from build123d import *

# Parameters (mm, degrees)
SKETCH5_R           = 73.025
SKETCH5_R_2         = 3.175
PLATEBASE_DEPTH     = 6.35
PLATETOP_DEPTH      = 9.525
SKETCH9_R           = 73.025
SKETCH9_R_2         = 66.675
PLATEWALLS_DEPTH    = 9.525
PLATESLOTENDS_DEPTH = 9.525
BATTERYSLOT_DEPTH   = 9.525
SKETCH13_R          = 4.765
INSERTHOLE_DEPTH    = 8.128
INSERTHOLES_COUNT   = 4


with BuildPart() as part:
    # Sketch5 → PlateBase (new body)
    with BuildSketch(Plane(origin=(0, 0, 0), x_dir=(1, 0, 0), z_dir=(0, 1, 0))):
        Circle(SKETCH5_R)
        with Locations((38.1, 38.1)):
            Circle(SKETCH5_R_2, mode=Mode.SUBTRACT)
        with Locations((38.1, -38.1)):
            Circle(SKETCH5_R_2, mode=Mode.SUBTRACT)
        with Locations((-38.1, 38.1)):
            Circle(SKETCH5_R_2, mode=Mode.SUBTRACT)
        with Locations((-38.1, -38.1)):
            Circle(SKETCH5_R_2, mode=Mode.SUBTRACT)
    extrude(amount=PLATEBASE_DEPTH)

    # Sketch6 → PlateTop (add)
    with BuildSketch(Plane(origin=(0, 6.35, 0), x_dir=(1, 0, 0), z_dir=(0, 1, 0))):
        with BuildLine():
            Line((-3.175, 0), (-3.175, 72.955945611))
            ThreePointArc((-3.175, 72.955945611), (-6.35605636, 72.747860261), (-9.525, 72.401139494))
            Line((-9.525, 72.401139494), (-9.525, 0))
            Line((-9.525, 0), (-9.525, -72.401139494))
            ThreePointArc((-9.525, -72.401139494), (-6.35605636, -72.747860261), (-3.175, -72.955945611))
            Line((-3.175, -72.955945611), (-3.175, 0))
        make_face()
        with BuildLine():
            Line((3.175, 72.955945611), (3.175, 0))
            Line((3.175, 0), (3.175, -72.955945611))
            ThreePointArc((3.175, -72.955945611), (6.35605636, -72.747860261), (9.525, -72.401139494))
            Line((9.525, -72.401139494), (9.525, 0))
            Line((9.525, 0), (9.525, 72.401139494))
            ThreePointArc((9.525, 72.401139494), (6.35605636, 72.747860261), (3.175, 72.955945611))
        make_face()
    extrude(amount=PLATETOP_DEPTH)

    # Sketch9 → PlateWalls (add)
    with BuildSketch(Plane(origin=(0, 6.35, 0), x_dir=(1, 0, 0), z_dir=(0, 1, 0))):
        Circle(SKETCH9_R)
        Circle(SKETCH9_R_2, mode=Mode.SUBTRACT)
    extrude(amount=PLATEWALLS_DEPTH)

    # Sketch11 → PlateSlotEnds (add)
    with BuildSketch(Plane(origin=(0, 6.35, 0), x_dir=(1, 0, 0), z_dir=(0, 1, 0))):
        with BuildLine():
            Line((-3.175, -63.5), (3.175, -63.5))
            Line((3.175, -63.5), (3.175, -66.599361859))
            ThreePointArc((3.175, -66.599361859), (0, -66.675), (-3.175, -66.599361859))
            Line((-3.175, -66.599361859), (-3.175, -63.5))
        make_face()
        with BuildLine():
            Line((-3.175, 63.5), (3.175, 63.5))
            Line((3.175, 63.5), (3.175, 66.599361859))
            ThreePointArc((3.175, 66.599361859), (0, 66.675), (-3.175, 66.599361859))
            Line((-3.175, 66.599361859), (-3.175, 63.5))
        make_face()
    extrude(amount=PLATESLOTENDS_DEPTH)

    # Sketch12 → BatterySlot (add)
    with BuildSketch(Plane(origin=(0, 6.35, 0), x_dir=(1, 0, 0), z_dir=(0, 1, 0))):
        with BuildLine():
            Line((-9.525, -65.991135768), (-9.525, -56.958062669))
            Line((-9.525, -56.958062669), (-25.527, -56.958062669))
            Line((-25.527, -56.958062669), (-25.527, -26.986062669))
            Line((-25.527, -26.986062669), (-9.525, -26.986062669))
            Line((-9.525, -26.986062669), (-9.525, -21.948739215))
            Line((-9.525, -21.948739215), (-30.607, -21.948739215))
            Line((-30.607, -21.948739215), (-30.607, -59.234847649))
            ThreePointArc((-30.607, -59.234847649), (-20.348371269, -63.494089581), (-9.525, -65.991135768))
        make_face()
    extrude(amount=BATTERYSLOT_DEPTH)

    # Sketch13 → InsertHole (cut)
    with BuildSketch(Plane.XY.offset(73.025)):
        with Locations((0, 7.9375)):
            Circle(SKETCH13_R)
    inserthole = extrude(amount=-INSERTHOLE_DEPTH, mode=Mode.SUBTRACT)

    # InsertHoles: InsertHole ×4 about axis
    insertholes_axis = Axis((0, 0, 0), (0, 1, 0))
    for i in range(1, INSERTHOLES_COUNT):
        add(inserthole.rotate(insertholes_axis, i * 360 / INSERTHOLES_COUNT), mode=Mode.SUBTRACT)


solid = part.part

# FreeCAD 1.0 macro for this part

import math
import FreeCAD as App
import Part
import Sketcher
from FreeCAD import Vector
Q = App.Units.Quantity

doc = App.newDocument("Part")
params = doc.addObject("Spreadsheet::Sheet", "Params")
for row, (alias, value) in enumerate([
    ("sketch1_diameter", "5.75 in"),
    ("sketch1_diameter2", "0.25 in"),
    ("pad1_length", "0.25 in"),
    ("sketch2_radius", "2.875 in"),
    ("pad2_length", "0.375 in"),
    ("sketch3_diameter", "5.75 in"),
    ("sketch3_diameter2", "5.25 in"),
    ("pad3_length", "0.375 in"),
    ("sketch4_radius", "2.625 in"),
    ("sketch4_width", "0.25 in"),
    ("pad4_length", "0.375 in"),
    ("sketch5_radius", "2.625 in"),
    ("sketch5_width", "0.63 in"),
    ("sketch5_width2", "0.83 in"),
    ("sketch5_height", "1.18 in"),
    ("pad5_length", "0.375 in"),
    ("pocket1_length", "0.32 in"),
], start=1):
    params.set(f"A{row}", alias)
    params.set(f"B{row}", "=" + value)
    params.setAlias(f"B{row}", alias)

body = doc.addObject("PartDesign::Body", "Body")

sketch1 = doc.addObject("Sketcher::SketchObject", "Sketch")
body.addObject(sketch1)
sketch1.AttachmentSupport = (doc.XZ_Plane, [""])
sketch1.MapMode = "FlatFace"
sketch1.addGeometry(Part.Circle(Vector(0, 0, 0), Vector(0, 0, 1), 73), False)
sketch1.addGeometry(Part.Circle(Vector(-38.1, 38.1, 0), Vector(0, 0, 1), 3.2), False)
sketch1.addGeometry(Part.Circle(Vector(38.1, 38.1, 0), Vector(0, 0, 1), 3.2), False)
sketch1.addGeometry(Part.Circle(Vector(-38.1, -38.1, 0), Vector(0, 0, 1), 3.2), False)
sketch1.addGeometry(Part.Circle(Vector(38.1, -38.1, 0), Vector(0, 0, 1), 3.2), False)
sketch1.addConstraint(Sketcher.Constraint("Coincident", 0, 3, -1, 1))
sketch1.addConstraint(Sketcher.Constraint("Equal", 1, 2))
sketch1.addConstraint(Sketcher.Constraint("Equal", 2, 3))
sketch1.addConstraint(Sketcher.Constraint("Equal", 3, 4))
sketch1.addConstraint(Sketcher.Constraint("Symmetric", 2, 3, 3, 3, -1, 1))
sketch1.addConstraint(Sketcher.Constraint("Symmetric", 1, 3, 4, 3, -1, 1))
sketch1.addConstraint(Sketcher.Constraint("Symmetric", 1, 3, 2, 3, -2))
sketch1.addConstraint(Sketcher.Constraint("Diameter", 0, Q("5.75 in")))
sketch1.addConstraint(Sketcher.Constraint("Diameter", 1, Q("0.25 in")))
sketch1.addConstraint(Sketcher.Constraint("DistanceX", 1, 3, 2, 3, Q("3 in")))
sketch1.addConstraint(Sketcher.Constraint("DistanceY", 3, 3, 1, 3, Q("3 in")))
sketch1.setExpression("Constraints[7]", "Params.sketch1_diameter")
sketch1.setExpression("Constraints[8]", "Params.sketch1_diameter2")
pad1 = doc.addObject("PartDesign::Pad", "Pad")
body.addObject(pad1)
pad1.Profile = sketch1
pad1.setExpression("Length", "Params.pad1_length")
pad1.Reversed = True

sketch2 = doc.addObject("Sketcher::SketchObject", "Sketch001")
body.addObject(sketch2)
sketch2.AttachmentSupport = (doc.XZ_Plane, [""])
sketch2.MapMode = "FlatFace"
sketch2.AttachmentOffset = App.Placement(Vector(0, 0, -0.25 * 25.4), App.Rotation())
sketch2.addGeometry(Part.ArcOfCircle(Part.Circle(Vector(0, 0, 0), Vector(0, 0, 1), 73), math.radians(-97.49), math.radians(-92.49)), False)
sketch2.addGeometry(Part.LineSegment(Vector(-10, -72, 0), Vector(-10, 72, 0)), False)
sketch2.addGeometry(Part.ArcOfCircle(Part.Circle(Vector(0, 0, 0), Vector(0, 0, 1), 73), math.radians(92.49), math.radians(97.49)), False)
sketch2.addGeometry(Part.LineSegment(Vector(-3, 73, 0), Vector(-3, -73, 0)), False)
sketch2.addGeometry(Part.LineSegment(Vector(3, -73, 0), Vector(3, 73, 0)), False)
sketch2.addGeometry(Part.ArcOfCircle(Part.Circle(Vector(0, 0, 0), Vector(0, 0, 1), 73), math.radians(82.51), math.radians(87.51)), False)
sketch2.addGeometry(Part.LineSegment(Vector(10, 72, 0), Vector(10, -72, 0)), False)
sketch2.addGeometry(Part.ArcOfCircle(Part.Circle(Vector(0, 0, 0), Vector(0, 0, 1), 73), math.radians(-87.51), math.radians(-82.51)), False)
sketch2.addConstraint(Sketcher.Constraint("Coincident", 0, 1, 1, 1))
sketch2.addConstraint(Sketcher.Constraint("Coincident", 1, 2, 2, 2))
sketch2.addConstraint(Sketcher.Constraint("Coincident", 2, 1, 3, 1))
sketch2.addConstraint(Sketcher.Constraint("Coincident", 3, 2, 0, 2))
sketch2.addConstraint(Sketcher.Constraint("Coincident", 4, 2, 5, 2))
sketch2.addConstraint(Sketcher.Constraint("Coincident", 5, 1, 6, 1))
sketch2.addConstraint(Sketcher.Constraint("Coincident", 6, 2, 7, 2))
sketch2.addConstraint(Sketcher.Constraint("Coincident", 7, 1, 4, 1))
sketch2.addConstraint(Sketcher.Constraint("Vertical", 1))
sketch2.addConstraint(Sketcher.Constraint("Vertical", 3))
sketch2.addConstraint(Sketcher.Constraint("Vertical", 4))
sketch2.addConstraint(Sketcher.Constraint("Vertical", 6))
sketch2.addConstraint(Sketcher.Constraint("Coincident", 0, 3, -1, 1))
sketch2.addConstraint(Sketcher.Constraint("Coincident", 2, 3, -1, 1))
sketch2.addConstraint(Sketcher.Constraint("Coincident", 5, 3, -1, 1))
sketch2.addConstraint(Sketcher.Constraint("Coincident", 7, 3, -1, 1))
sketch2.addConstraint(Sketcher.Constraint("Equal", 0, 2))
sketch2.addConstraint(Sketcher.Constraint("Equal", 2, 5))
sketch2.addConstraint(Sketcher.Constraint("Equal", 5, 7))
sketch2.addConstraint(Sketcher.Constraint("Horizontal", 2, 1, 4, 2))
sketch2.addConstraint(Sketcher.Constraint("Horizontal", 1, 2, 5, 1))
sketch2.addConstraint(Sketcher.Constraint("Radius", 0, Q("2.875 in")))
sketch2.addConstraint(Sketcher.Constraint("DistanceX", 1, 2, 4, 2, Q("0.5 in")))
sketch2.addConstraint(Sketcher.Constraint("DistanceX", 1, 2, 2, 1, Q("0.25 in")))
sketch2.setExpression("Constraints[21]", "Params.sketch2_radius")
pad2 = doc.addObject("PartDesign::Pad", "Pad001")
body.addObject(pad2)
pad2.Profile = sketch2
pad2.setExpression("Length", "Params.pad2_length")
pad2.Reversed = True

sketch3 = doc.addObject("Sketcher::SketchObject", "Sketch002")
body.addObject(sketch3)
sketch3.AttachmentSupport = (doc.XZ_Plane, [""])
sketch3.MapMode = "FlatFace"
sketch3.AttachmentOffset = App.Placement(Vector(0, 0, -0.25 * 25.4), App.Rotation())
sketch3.addGeometry(Part.Circle(Vector(0, 0, 0), Vector(0, 0, 1), 73), False)
sketch3.addGeometry(Part.Circle(Vector(0, 0, 0), Vector(0, 0, 1), 67), False)
sketch3.addConstraint(Sketcher.Constraint("Coincident", 0, 3, -1, 1))
sketch3.addConstraint(Sketcher.Constraint("Coincident", 1, 3, -1, 1))
sketch3.addConstraint(Sketcher.Constraint("Diameter", 0, Q("5.75 in")))
sketch3.addConstraint(Sketcher.Constraint("Diameter", 1, Q("5.25 in")))
sketch3.setExpression("Constraints[2]", "Params.sketch3_diameter")
sketch3.setExpression("Constraints[3]", "Params.sketch3_diameter2")
pad3 = doc.addObject("PartDesign::Pad", "Pad002")
body.addObject(pad3)
pad3.Profile = sketch3
pad3.setExpression("Length", "Params.pad3_length")
pad3.Reversed = True

sketch4 = doc.addObject("Sketcher::SketchObject", "Sketch003")
body.addObject(sketch4)
sketch4.AttachmentSupport = (doc.XZ_Plane, [""])
sketch4.MapMode = "FlatFace"
sketch4.AttachmentOffset = App.Placement(Vector(0, 0, -0.25 * 25.4), App.Rotation())
sketch4.addGeometry(Part.LineSegment(Vector(3.2, 63.5, 0), Vector(-3.2, 63.5, 0)), False)
sketch4.addGeometry(Part.LineSegment(Vector(-3.2, 63.5, 0), Vector(-3.2, 66.6, 0)), False)
sketch4.addGeometry(Part.ArcOfCircle(Part.Circle(Vector(0, 0, 0), Vector(0, 0, 1), 66.7), math.radians(87.27), math.radians(92.73)), False)
sketch4.addGeometry(Part.LineSegment(Vector(3.2, 66.6, 0), Vector(3.2, 63.5, 0)), False)
sketch4.addGeometry(Part.LineSegment(Vector(-3.2, -63.5, 0), Vector(3.2, -63.5, 0)), False)
sketch4.addGeometry(Part.LineSegment(Vector(3.2, -63.5, 0), Vector(3.2, -66.6, 0)), False)
sketch4.addGeometry(Part.ArcOfCircle(Part.Circle(Vector(0, 0, 0), Vector(0, 0, 1), 66.7), math.radians(-92.73), math.radians(-87.27)), False)
sketch4.addGeometry(Part.LineSegment(Vector(-3.2, -66.6, 0), Vector(-3.2, -63.5, 0)), False)
sketch4.addConstraint(Sketcher.Constraint("Coincident", 0, 2, 1, 1))
sketch4.addConstraint(Sketcher.Constraint("Coincident", 1, 2, 2, 2))
sketch4.addConstraint(Sketcher.Constraint("Coincident", 2, 1, 3, 1))
sketch4.addConstraint(Sketcher.Constraint("Coincident", 3, 2, 0, 1))
sketch4.addConstraint(Sketcher.Constraint("Coincident", 4, 2, 5, 1))
sketch4.addConstraint(Sketcher.Constraint("Coincident", 5, 2, 6, 2))
sketch4.addConstraint(Sketcher.Constraint("Coincident", 6, 1, 7, 1))
sketch4.addConstraint(Sketcher.Constraint("Coincident", 7, 2, 4, 1))
sketch4.addConstraint(Sketcher.Constraint("Horizontal", 0))
sketch4.addConstraint(Sketcher.Constraint("Vertical", 1))
sketch4.addConstraint(Sketcher.Constraint("Vertical", 3))
sketch4.addConstraint(Sketcher.Constraint("Horizontal", 4))
sketch4.addConstraint(Sketcher.Constraint("Vertical", 5))
sketch4.addConstraint(Sketcher.Constraint("Vertical", 7))
sketch4.addConstraint(Sketcher.Constraint("Coincident", 2, 3, -1, 1))
sketch4.addConstraint(Sketcher.Constraint("Coincident", 6, 3, -1, 1))
sketch4.addConstraint(Sketcher.Constraint("Equal", 2, 6))
sketch4.addConstraint(Sketcher.Constraint("Symmetric", 0, 2, 4, 2, -1, 1))
sketch4.addConstraint(Sketcher.Constraint("Horizontal", 1, 2, 2, 1))
sketch4.addConstraint(Sketcher.Constraint("Horizontal", 5, 2, 6, 1))
sketch4.addConstraint(Sketcher.Constraint("Radius", 2, Q("2.625 in")))
sketch4.addConstraint(Sketcher.Constraint("DistanceY", 4, 2, 3, 2, Q("5 in")))
sketch4.addConstraint(Sketcher.Constraint("DistanceX", 0, 2, 0, 1, Q("0.25 in")))
sketch4.setExpression("Constraints[20]", "Params.sketch4_radius")
sketch4.setExpression("Constraints[22]", "Params.sketch4_width")
pad4 = doc.addObject("PartDesign::Pad", "Pad003")
body.addObject(pad4)
pad4.Profile = sketch4
pad4.setExpression("Length", "Params.pad4_length")
pad4.Reversed = True

sketch5 = doc.addObject("Sketcher::SketchObject", "Sketch004")
body.addObject(sketch5)
sketch5.AttachmentSupport = (doc.XZ_Plane, [""])
sketch5.MapMode = "FlatFace"
sketch5.AttachmentOffset = App.Placement(Vector(0, 0, -0.25 * 25.4), App.Rotation())
sketch5.addGeometry(Part.LineSegment(Vector(-10, 66, 0), Vector(-10, 57, 0)), False)
sketch5.addGeometry(Part.LineSegment(Vector(-10, 57, 0), Vector(-26, 57, 0)), False)
sketch5.addGeometry(Part.LineSegment(Vector(-26, 57, 0), Vector(-26, 27, 0)), False)
sketch5.addGeometry(Part.LineSegment(Vector(-26, 27, 0), Vector(-10, 27, 0)), False)
sketch5.addGeometry(Part.LineSegment(Vector(-10, 27, 0), Vector(-10, 22, 0)), False)
sketch5.addGeometry(Part.LineSegment(Vector(-10, 22, 0), Vector(-31, 22, 0)), False)
sketch5.addGeometry(Part.LineSegment(Vector(-31, 22, 0), Vector(-31, 59, 0)), False)
sketch5.addGeometry(Part.ArcOfCircle(Part.Circle(Vector(0, 0, 0), Vector(0, 0, 1), 67), math.radians(98.21), math.radians(117.33)), False)
sketch5.addConstraint(Sketcher.Constraint("Coincident", 0, 2, 1, 1))
sketch5.addConstraint(Sketcher.Constraint("Coincident", 1, 2, 2, 1))
sketch5.addConstraint(Sketcher.Constraint("Coincident", 2, 2, 3, 1))
sketch5.addConstraint(Sketcher.Constraint("Coincident", 3, 2, 4, 1))
sketch5.addConstraint(Sketcher.Constraint("Coincident", 4, 2, 5, 1))
sketch5.addConstraint(Sketcher.Constraint("Coincident", 5, 2, 6, 1))
sketch5.addConstraint(Sketcher.Constraint("Coincident", 6, 2, 7, 2))
sketch5.addConstraint(Sketcher.Constraint("Coincident", 7, 1, 0, 1))
sketch5.addConstraint(Sketcher.Constraint("Vertical", 0))
sketch5.addConstraint(Sketcher.Constraint("Horizontal", 1))
sketch5.addConstraint(Sketcher.Constraint("Vertical", 2))
sketch5.addConstraint(Sketcher.Constraint("Horizontal", 3))
sketch5.addConstraint(Sketcher.Constraint("Vertical", 4))
sketch5.addConstraint(Sketcher.Constraint("Horizontal", 5))
sketch5.addConstraint(Sketcher.Constraint("Vertical", 6))
sketch5.addConstraint(Sketcher.Constraint("Coincident", 7, 3, -1, 1))
sketch5.addConstraint(Sketcher.Constraint("Vertical", 0, 2, 3, 2))
sketch5.addConstraint(Sketcher.Constraint("Radius", 7, Q("2.625 in")))
sketch5.addConstraint(Sketcher.Constraint("DistanceX", 1, 2, 1, 1, Q("0.63 in")))
sketch5.addConstraint(Sketcher.Constraint("DistanceX", 5, 2, 5, 1, Q("0.83 in")))
sketch5.addConstraint(Sketcher.Constraint("DistanceY", 2, 2, 2, 1, Q("1.18 in")))
sketch5.addConstraint(Sketcher.Constraint("DistanceX", 0, 2, -1, 1, Q("0.375 in")))
sketch5.addConstraint(Sketcher.Constraint("DistanceY", 6, 1, 6, 2, Q("37.286108 mm")))
sketch5.addConstraint(Sketcher.Constraint("DistanceY", 0, 2, 0, 1, Q("9.033073 mm")))
sketch5.setExpression("Constraints[17]", "Params.sketch5_radius")
sketch5.setExpression("Constraints[18]", "Params.sketch5_width")
sketch5.setExpression("Constraints[19]", "Params.sketch5_width2")
sketch5.setExpression("Constraints[20]", "Params.sketch5_height")
pad5 = doc.addObject("PartDesign::Pad", "Pad004")
body.addObject(pad5)
pad5.Profile = sketch5
pad5.setExpression("Length", "Params.pad5_length")
pad5.Reversed = True

sketch6 = doc.addObject("Sketcher::SketchObject", "Sketch005")
body.addObject(sketch6)
sketch6.AttachmentSupport = (doc.XY_Plane, [""])
sketch6.MapMode = "FlatFace"
sketch6.AttachmentOffset = App.Placement(Vector(0, 0, 2.875 * 25.4), App.Rotation())
sketch6.addGeometry(Part.Circle(Vector(0, 7.9, 0), Vector(0, 0, 1), 4.8), False)
sketch6.addConstraint(Sketcher.Constraint("PointOnObject", 0, 3, -2))
sketch6.addConstraint(Sketcher.Constraint("Diameter", 0, Q("9.53 mm")))
sketch6.addConstraint(Sketcher.Constraint("DistanceY", -1, 1, 0, 3, Q("0.3125 in")))
pocket1 = doc.addObject("PartDesign::Pocket", "Pocket")
body.addObject(pocket1)
pocket1.Profile = sketch6
pocket1.setExpression("Length", "Params.pocket1_length")
doc.recompute()

polarpattern = doc.addObject("PartDesign::PolarPattern", "PolarPattern")
body.addObject(polarpattern)
polarpattern.Originals = [pocket1]
polarpattern.Axis = (doc.Y_Axis, [""])
polarpattern.Angle = 360
polarpattern.Occurrences = 4
body.Tip = polarpattern

doc.recompute()
